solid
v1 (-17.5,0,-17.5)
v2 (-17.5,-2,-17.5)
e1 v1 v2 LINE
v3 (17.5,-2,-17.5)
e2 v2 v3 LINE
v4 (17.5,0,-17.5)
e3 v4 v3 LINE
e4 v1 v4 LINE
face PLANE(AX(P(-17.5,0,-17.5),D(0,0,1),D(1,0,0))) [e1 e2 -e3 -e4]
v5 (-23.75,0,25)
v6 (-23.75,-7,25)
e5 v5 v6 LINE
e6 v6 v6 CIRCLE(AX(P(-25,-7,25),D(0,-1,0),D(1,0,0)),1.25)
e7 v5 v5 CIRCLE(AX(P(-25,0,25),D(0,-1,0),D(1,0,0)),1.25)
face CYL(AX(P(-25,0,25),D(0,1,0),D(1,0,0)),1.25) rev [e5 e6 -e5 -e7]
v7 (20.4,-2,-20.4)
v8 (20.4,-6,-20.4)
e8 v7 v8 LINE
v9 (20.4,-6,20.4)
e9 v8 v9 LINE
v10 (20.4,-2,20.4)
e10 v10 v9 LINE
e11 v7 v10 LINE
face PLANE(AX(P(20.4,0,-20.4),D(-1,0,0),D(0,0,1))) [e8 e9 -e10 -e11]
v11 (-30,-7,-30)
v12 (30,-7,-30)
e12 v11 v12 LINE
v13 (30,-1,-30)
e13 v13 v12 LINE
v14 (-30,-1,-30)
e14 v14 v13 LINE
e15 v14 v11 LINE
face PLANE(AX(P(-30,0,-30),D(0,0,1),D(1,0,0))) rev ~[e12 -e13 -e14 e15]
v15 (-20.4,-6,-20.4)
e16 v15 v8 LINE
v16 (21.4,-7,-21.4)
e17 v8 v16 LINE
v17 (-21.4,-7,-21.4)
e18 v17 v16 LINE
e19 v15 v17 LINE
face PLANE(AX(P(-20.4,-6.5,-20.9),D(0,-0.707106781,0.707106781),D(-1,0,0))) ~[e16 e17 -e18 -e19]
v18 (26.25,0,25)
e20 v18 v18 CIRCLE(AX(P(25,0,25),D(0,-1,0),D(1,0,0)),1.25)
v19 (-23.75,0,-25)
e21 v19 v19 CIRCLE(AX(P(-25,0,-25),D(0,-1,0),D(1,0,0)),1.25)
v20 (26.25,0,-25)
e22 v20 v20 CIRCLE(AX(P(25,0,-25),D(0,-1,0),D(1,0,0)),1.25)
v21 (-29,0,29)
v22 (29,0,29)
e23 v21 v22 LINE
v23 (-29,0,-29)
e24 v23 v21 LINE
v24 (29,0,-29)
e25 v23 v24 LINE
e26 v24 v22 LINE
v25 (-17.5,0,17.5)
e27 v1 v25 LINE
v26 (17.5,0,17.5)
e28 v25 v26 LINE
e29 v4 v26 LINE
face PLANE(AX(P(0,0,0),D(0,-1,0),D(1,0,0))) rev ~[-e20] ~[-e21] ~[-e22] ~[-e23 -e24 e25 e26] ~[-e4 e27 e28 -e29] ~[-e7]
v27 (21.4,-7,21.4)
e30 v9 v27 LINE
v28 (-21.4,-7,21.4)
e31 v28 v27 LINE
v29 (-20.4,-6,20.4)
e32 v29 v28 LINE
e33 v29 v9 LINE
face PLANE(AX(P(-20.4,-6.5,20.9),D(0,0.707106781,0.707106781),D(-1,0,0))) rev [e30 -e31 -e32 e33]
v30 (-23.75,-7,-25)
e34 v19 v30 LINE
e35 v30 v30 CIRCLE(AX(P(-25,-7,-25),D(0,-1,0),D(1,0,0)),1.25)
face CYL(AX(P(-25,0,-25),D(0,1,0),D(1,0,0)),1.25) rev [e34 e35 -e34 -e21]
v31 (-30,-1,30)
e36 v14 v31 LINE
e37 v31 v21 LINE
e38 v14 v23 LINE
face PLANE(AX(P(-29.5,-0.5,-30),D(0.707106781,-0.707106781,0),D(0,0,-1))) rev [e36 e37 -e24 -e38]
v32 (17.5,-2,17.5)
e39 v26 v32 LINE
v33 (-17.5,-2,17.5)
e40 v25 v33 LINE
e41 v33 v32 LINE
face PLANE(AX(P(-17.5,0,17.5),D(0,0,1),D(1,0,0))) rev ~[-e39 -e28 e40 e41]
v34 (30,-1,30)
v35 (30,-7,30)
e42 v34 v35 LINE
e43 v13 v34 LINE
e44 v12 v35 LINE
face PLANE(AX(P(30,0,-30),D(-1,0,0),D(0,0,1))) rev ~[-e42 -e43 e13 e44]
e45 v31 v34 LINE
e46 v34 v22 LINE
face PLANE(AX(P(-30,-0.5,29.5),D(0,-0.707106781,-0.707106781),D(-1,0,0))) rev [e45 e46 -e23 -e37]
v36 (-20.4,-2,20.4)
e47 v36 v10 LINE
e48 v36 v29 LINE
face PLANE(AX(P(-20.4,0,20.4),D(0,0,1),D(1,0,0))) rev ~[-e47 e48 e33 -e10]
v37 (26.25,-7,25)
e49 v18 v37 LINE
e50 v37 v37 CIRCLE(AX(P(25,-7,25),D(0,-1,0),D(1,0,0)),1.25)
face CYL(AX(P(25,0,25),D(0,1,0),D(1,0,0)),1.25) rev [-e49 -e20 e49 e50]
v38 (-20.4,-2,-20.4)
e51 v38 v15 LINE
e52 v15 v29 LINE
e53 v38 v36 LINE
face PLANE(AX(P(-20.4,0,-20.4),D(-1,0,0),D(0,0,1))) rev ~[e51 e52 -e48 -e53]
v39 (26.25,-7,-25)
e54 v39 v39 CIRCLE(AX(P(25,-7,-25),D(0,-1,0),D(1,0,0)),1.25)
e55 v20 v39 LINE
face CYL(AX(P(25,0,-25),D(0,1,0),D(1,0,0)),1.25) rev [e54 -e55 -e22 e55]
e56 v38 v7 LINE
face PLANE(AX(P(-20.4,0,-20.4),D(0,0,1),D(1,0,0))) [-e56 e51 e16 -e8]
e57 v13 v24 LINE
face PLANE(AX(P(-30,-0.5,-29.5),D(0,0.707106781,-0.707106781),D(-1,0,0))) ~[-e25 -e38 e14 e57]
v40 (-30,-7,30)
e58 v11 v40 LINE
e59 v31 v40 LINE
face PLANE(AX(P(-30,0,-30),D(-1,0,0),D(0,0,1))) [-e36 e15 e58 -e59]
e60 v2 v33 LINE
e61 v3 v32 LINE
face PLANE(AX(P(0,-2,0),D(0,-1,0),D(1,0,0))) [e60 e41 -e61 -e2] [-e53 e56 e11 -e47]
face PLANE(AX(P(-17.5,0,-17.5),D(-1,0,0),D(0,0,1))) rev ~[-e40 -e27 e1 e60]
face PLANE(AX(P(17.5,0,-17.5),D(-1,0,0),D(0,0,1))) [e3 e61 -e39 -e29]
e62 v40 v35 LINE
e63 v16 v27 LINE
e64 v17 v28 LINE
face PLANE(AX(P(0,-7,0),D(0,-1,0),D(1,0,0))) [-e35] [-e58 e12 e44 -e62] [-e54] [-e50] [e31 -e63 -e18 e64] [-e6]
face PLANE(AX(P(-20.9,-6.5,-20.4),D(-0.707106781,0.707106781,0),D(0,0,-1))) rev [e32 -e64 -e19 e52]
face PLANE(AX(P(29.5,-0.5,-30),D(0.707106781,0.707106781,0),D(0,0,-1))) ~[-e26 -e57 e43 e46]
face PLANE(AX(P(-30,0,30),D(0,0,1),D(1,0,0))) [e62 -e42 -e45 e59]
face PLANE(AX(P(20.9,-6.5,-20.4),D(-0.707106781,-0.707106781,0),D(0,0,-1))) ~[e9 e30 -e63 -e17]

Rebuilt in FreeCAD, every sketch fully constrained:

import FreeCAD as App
import Part
import Sketcher
from FreeCAD import Vector


def edges_at(feature, points):
    """Names of the edges that pass closest to the given points."""
    edges = feature.Shape.Edges
    near = lambda p: min(range(len(edges)), key=lambda i: edges[i].distToShape(Part.Vertex(*p))[0])
    return sorted({f"Edge{near(p) + 1}" for p in points})

doc = App.newDocument("Part")
body = doc.addObject("PartDesign::Body", "Body")

# Sketch on XZ plane
sketch1 = body.newObject("Sketcher::SketchObject", "Sketch")
sketch1.AttachmentSupport = (doc.getObject("XZ_Plane"), [""])
sketch1.MapMode = "FlatFace"
sketch1.addGeometry(Part.LineSegment(Vector(-30, 30, 0), Vector(-30, -30, 0)), False)
sketch1.addGeometry(Part.LineSegment(Vector(-30, -30, 0), Vector(30, -30, 0)), False)
sketch1.addGeometry(Part.LineSegment(Vector(30, -30, 0), Vector(30, 30, 0)), False)
sketch1.addGeometry(Part.LineSegment(Vector(30, 30, 0), Vector(-30, 30, 0)), False)
sketch1.addGeometry(Part.Circle(Vector(-25, -25, 0), Vector(0, 0, 1), 1.2), False)
sketch1.addGeometry(Part.Circle(Vector(25, -25, 0), Vector(0, 0, 1), 1.2), False)
sketch1.addGeometry(Part.Circle(Vector(-25, 25, 0), Vector(0, 0, 1), 1.2), False)
sketch1.addGeometry(Part.LineSegment(Vector(20.4, -20.4, 0), Vector(-20.4, -20.4, 0)), False)
sketch1.addGeometry(Part.LineSegment(Vector(-20.4, -20.4, 0), Vector(-20.4, 20.4, 0)), False)
sketch1.addGeometry(Part.LineSegment(Vector(-20.4, 20.4, 0), Vector(20.4, 20.4, 0)), False)
sketch1.addGeometry(Part.LineSegment(Vector(20.4, 20.4, 0), Vector(20.4, -20.4, 0)), False)
sketch1.addGeometry(Part.Circle(Vector(25, 25, 0), Vector(0, 0, 1), 1.2), False)
sketch1.addConstraint(Sketcher.Constraint("Coincident", 0, 2, 1, 1))
sketch1.addConstraint(Sketcher.Constraint("Coincident", 1, 2, 2, 1))
sketch1.addConstraint(Sketcher.Constraint("Coincident", 2, 2, 3, 1))
sketch1.addConstraint(Sketcher.Constraint("Coincident", 3, 2, 0, 1))
sketch1.addConstraint(Sketcher.Constraint("Coincident", 7, 2, 8, 1))
sketch1.addConstraint(Sketcher.Constraint("Coincident", 8, 2, 9, 1))
sketch1.addConstraint(Sketcher.Constraint("Coincident", 9, 2, 10, 1))
sketch1.addConstraint(Sketcher.Constraint("Coincident", 10, 2, 7, 1))
sketch1.addConstraint(Sketcher.Constraint("Vertical", 0))
sketch1.addConstraint(Sketcher.Constraint("Horizontal", 1))
sketch1.addConstraint(Sketcher.Constraint("Vertical", 2))
sketch1.addConstraint(Sketcher.Constraint("Horizontal", 3))
sketch1.addConstraint(Sketcher.Constraint("Horizontal", 7))
sketch1.addConstraint(Sketcher.Constraint("Vertical", 8))
sketch1.addConstraint(Sketcher.Constraint("Horizontal", 9))
sketch1.addConstraint(Sketcher.Constraint("Vertical", 10))
sketch1.addConstraint(Sketcher.Constraint("Equal", 4, 5))
sketch1.addConstraint(Sketcher.Constraint("Equal", 5, 6))
sketch1.addConstraint(Sketcher.Constraint("Equal", 6, 11))
sketch1.addConstraint(Sketcher.Constraint("Symmetric", 5, 3, 6, 3, -1, 1))
sketch1.addConstraint(Sketcher.Constraint("Symmetric", 4, 3, 11, 3, -1, 1))
sketch1.addConstraint(Sketcher.Constraint("Symmetric", 0, 2, 2, 2, -1, 1))
sketch1.addConstraint(Sketcher.Constraint("Symmetric", 7, 2, 9, 2, -1, 1))
sketch1.addConstraint(Sketcher.Constraint("Symmetric", 4, 3, 5, 3, -2))
sketch1.addConstraint(Sketcher.Constraint("Equal", 3, 0))
sketch1.addConstraint(Sketcher.Constraint("Equal", 9, 8))
sketch1.addConstraint(Sketcher.Constraint("Diameter", 4, 2.5))
sketch1.addConstraint(Sketcher.Constraint("DistanceX", 1, 1, 1, 2, 60.0))
sketch1.addConstraint(Sketcher.Constraint("DistanceX", 7, 2, 7, 1, 40.8))
sketch1.addConstraint(Sketcher.Constraint("DistanceX", 4, 3, -1, 1, 25.0))
sketch1.addConstraint(Sketcher.Constraint("DistanceY", 4, 3, -1, 1, 25.0))
pad1 = body.newObject("PartDesign::Pad", "Pad")
pad1.Profile = sketch1
pad1.Length = 7

# Sketch on XZ plane
sketch2 = body.newObject("Sketcher::SketchObject", "Sketch001")
sketch2.AttachmentSupport = (doc.getObject("XZ_Plane"), [""])
sketch2.MapMode = "FlatFace"
sketch2.addGeometry(Part.LineSegment(Vector(-20, 20, 0), Vector(-20, -20, 0)), False)
sketch2.addGeometry(Part.LineSegment(Vector(-20, -20, 0), Vector(20, -20, 0)), False)
sketch2.addGeometry(Part.LineSegment(Vector(20, -20, 0), Vector(20, 20, 0)), False)
sketch2.addGeometry(Part.LineSegment(Vector(20, 20, 0), Vector(-20, 20, 0)), False)
sketch2.addGeometry(Part.LineSegment(Vector(18, -18, 0), Vector(-18, -18, 0)), False)
sketch2.addGeometry(Part.LineSegment(Vector(-18, -18, 0), Vector(-18, 18, 0)), False)
sketch2.addGeometry(Part.LineSegment(Vector(-18, 18, 0), Vector(18, 18, 0)), False)
sketch2.addGeometry(Part.LineSegment(Vector(18, 18, 0), Vector(18, -18, 0)), False)
sketch2.addConstraint(Sketcher.Constraint("Coincident", 0, 2, 1, 1))
sketch2.addConstraint(Sketcher.Constraint("Coincident", 1, 2, 2, 1))
sketch2.addConstraint(Sketcher.Constraint("Coincident", 2, 2, 3, 1))
sketch2.addConstraint(Sketcher.Constraint("Coincident", 3, 2, 0, 1))
sketch2.addConstraint(Sketcher.Constraint("Coincident", 4, 2, 5, 1))
sketch2.addConstraint(Sketcher.Constraint("Coincident", 5, 2, 6, 1))
sketch2.addConstraint(Sketcher.Constraint("Coincident", 6, 2, 7, 1))
sketch2.addConstraint(Sketcher.Constraint("Coincident", 7, 2, 4, 1))
sketch2.addConstraint(Sketcher.Constraint("Vertical", 0))
sketch2.addConstraint(Sketcher.Constraint("Horizontal", 1))
sketch2.addConstraint(Sketcher.Constraint("Vertical", 2))
sketch2.addConstraint(Sketcher.Constraint("Horizontal", 3))
sketch2.addConstraint(Sketcher.Constraint("Horizontal", 4))
sketch2.addConstraint(Sketcher.Constraint("Vertical", 5))
sketch2.addConstraint(Sketcher.Constraint("Horizontal", 6))
sketch2.addConstraint(Sketcher.Constraint("Vertical", 7))
sketch2.addConstraint(Sketcher.Constraint("Symmetric", 0, 2, 2, 2, -1, 1))
sketch2.addConstraint(Sketcher.Constraint("Symmetric", 4, 2, 6, 2, -1, 1))
sketch2.addConstraint(Sketcher.Constraint("Equal", 3, 0))
sketch2.addConstraint(Sketcher.Constraint("Equal", 6, 5))
sketch2.addConstraint(Sketcher.Constraint("DistanceX", 4, 2, 4, 1, 35.0))
sketch2.addConstraint(Sketcher.Constraint("DistanceX", 1, 1, 1, 2, 40.8))
pad2 = body.newObject("PartDesign::Pad", "Pad001")
pad2.Profile = sketch2
pad2.Length = 2
doc.recompute()

chamfer = body.newObject("PartDesign::Chamfer", "Chamfer")
chamfer.Base = (pad2, edges_at(pad2, [
    (20.4, -7, 0),
    (0, -7, 20.4),
    (-20.4, -7, 0),
    (0, -7, -20.4),
]))
chamfer.Size = 1
doc.recompute()

chamfer2 = body.newObject("PartDesign::Chamfer", "Chamfer001")
chamfer2.Base = (chamfer, edges_at(chamfer, [
    (-30, 0, 0),
    (0, 0, -30),
    (30, 0, 0),
    (0, 0, 30),
]))
chamfer2.Size = 1

doc.recompute()
